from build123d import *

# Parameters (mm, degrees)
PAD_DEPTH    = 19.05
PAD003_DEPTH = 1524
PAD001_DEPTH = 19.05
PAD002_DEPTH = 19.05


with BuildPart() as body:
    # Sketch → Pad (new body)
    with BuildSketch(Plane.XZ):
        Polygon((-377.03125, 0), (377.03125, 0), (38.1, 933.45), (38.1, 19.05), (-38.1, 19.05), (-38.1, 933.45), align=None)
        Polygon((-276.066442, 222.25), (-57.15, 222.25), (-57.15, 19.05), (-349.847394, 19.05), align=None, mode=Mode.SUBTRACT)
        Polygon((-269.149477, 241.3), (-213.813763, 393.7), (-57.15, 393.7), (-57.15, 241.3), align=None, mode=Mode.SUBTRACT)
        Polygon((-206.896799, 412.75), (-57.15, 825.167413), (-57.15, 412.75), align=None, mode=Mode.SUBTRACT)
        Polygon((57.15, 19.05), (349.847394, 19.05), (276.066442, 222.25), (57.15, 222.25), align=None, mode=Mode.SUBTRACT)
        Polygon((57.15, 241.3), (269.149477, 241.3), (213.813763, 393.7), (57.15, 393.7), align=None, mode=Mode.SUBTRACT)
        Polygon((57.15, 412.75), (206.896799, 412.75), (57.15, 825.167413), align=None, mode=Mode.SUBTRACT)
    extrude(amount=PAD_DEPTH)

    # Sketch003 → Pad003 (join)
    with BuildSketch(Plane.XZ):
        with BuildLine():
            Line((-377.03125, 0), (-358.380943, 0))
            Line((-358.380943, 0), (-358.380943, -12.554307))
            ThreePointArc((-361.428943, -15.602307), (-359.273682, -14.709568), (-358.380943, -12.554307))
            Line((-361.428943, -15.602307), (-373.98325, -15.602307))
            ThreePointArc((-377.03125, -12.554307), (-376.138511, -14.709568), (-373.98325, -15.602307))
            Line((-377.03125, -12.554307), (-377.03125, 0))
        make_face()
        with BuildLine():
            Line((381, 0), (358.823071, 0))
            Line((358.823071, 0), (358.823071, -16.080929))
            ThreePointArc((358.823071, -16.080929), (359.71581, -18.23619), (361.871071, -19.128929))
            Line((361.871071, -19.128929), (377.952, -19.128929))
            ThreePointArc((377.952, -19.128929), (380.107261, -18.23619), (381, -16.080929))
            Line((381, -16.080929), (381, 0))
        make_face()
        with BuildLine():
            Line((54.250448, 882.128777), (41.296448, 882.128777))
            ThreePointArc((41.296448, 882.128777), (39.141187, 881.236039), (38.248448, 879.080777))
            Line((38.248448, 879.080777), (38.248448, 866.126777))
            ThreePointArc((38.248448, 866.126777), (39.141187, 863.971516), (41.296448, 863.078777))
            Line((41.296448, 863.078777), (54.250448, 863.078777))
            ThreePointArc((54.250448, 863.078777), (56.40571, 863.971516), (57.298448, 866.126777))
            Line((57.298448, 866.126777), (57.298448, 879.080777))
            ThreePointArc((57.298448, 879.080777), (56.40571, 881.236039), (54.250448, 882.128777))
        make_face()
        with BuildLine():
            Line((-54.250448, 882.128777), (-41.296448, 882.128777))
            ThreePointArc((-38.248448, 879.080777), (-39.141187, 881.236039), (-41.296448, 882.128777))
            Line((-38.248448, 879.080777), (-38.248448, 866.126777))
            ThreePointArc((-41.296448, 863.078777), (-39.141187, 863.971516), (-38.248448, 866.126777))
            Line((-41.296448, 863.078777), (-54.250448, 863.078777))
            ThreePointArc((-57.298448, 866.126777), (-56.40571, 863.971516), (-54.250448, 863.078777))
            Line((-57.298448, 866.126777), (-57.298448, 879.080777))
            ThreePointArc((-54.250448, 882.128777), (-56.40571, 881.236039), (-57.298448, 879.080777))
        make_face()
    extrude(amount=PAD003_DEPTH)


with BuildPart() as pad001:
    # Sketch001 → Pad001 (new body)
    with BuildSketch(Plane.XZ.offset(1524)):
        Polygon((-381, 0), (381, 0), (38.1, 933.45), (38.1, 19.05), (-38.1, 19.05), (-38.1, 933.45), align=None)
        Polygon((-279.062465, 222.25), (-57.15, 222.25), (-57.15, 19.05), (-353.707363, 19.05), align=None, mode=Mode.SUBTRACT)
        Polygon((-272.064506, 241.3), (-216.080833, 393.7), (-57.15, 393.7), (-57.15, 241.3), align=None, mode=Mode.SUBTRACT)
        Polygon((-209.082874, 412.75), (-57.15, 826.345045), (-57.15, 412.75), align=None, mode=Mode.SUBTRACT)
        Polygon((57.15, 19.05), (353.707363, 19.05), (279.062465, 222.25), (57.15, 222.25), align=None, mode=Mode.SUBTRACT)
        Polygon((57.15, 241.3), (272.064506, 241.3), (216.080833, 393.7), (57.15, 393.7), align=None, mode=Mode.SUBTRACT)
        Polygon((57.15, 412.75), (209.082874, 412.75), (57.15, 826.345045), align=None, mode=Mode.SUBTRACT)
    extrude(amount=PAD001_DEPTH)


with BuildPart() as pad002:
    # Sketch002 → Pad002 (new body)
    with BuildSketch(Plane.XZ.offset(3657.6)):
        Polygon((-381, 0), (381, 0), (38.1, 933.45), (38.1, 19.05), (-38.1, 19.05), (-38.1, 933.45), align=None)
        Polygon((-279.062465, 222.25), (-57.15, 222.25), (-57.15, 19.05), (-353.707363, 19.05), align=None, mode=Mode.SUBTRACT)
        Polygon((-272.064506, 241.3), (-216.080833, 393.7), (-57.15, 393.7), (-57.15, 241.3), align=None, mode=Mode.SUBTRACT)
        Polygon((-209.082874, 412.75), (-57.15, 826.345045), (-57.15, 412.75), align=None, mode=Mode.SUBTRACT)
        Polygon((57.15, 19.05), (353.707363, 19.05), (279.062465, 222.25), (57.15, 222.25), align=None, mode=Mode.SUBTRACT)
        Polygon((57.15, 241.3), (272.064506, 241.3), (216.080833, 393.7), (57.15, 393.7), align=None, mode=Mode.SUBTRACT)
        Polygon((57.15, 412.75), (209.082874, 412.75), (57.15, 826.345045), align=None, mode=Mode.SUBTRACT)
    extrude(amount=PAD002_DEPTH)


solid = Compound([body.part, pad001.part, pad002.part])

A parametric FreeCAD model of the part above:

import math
import FreeCAD as App
import Part
import Sketcher
Q = App.Units.Quantity


def add_polygon(sketch, points):
    """Adds a closed chain of lines whose ends are joined by coincident constraints."""
    first, n = sketch.GeometryCount, len(points)
    for a, b in zip(points, points[1:] + points[:1]):
        sketch.addGeometry(Part.LineSegment(App.Vector(*a, 0), App.Vector(*b, 0)), False)
    for i in range(n):
        sketch.addConstraint(Sketcher.Constraint("Coincident", first + i, 2, first + (i + 1) % n, 1))

doc = App.newDocument("Part")
body = doc.addObject("PartDesign::Body", "Body")

sketch1 = doc.addObject("Sketcher::SketchObject", "Sketch")
body.addObject(sketch1)
sketch1.AttachmentSupport = (doc.XZ_Plane, [""])
sketch1.MapMode = "FlatFace"
add_polygon(sketch1, [(-377, 0), (377, 0), (38, 933), (38, 19), (-38, 19), (-38, 933)])
add_polygon(sketch1, [(-350, 19), (-276, 222), (-57, 222), (-57, 19)])
add_polygon(sketch1, [(-57, 241), (-269, 241), (-214, 394), (-57, 394)])
add_polygon(sketch1, [(350, 19), (57, 19), (57, 222), (276, 222)])
add_polygon(sketch1, [(269, 241), (57, 241), (57, 394), (214, 394)])
add_polygon(sketch1, [(-57, 413), (-207, 413), (-57, 825)])
add_polygon(sketch1, [(207, 413), (57, 413), (57, 825)])
sketch1.addConstraint(Sketcher.Constraint("Horizontal", 0))
sketch1.addConstraint(Sketcher.Constraint("Vertical", 2))
sketch1.addConstraint(Sketcher.Constraint("Horizontal", 3))
sketch1.addConstraint(Sketcher.Constraint("Vertical", 4))
sketch1.addConstraint(Sketcher.Constraint("Horizontal", 7))
sketch1.addConstraint(Sketcher.Constraint("Vertical", 8))
sketch1.addConstraint(Sketcher.Constraint("Horizontal", 9))
sketch1.addConstraint(Sketcher.Constraint("Horizontal", 10))
sketch1.addConstraint(Sketcher.Constraint("Horizontal", 12))
sketch1.addConstraint(Sketcher.Constraint("Vertical", 13))
sketch1.addConstraint(Sketcher.Constraint("Horizontal", 14))
sketch1.addConstraint(Sketcher.Constraint("Vertical", 15))
sketch1.addConstraint(Sketcher.Constraint("Horizontal", 16))
sketch1.addConstraint(Sketcher.Constraint("Horizontal", 18))
sketch1.addConstraint(Sketcher.Constraint("Vertical", 19))
sketch1.addConstraint(Sketcher.Constraint("Horizontal", 20))
sketch1.addConstraint(Sketcher.Constraint("Horizontal", 22))
sketch1.addConstraint(Sketcher.Constraint("Vertical", 24))
sketch1.addConstraint(Sketcher.Constraint("Horizontal", 25))
sketch1.addConstraint(Sketcher.Constraint("Vertical", 26))
sketch1.addConstraint(Sketcher.Constraint("Symmetric", 0, 2, 5, 2, -1, 1))
sketch1.addConstraint(Sketcher.Constraint("Symmetric", 1, 2, 4, 2, -2))
sketch1.addConstraint(Sketcher.Constraint("Symmetric", 8, 2, 14, 2, -2))
sketch1.addConstraint(Sketcher.Constraint("Symmetric", 6, 2, 16, 2, -2))
sketch1.addConstraint(Sketcher.Constraint("Symmetric", 13, 2, 18, 2, -2))
sketch1.addConstraint(Sketcher.Constraint("Symmetric", 11, 2, 20, 2, -2))
sketch1.addConstraint(Sketcher.Constraint("Symmetric", 24, 2, 25, 2, -2))
sketch1.addConstraint(Sketcher.Constraint("Parallel", 5, 6))
sketch1.addConstraint(Sketcher.Constraint("Parallel", 6, 11))
sketch1.addConstraint(Sketcher.Constraint("Parallel", 1, 17))
sketch1.addConstraint(Sketcher.Constraint("Parallel", 17, 21))
sketch1.addConstraint(Sketcher.Constraint("Parallel", 11, 23))
sketch1.addConstraint(Sketcher.Constraint("Parallel", 21, 27))
sketch1.addConstraint(Sketcher.Constraint("Horizontal", 3, 2, 8, 2))
sketch1.addConstraint(Sketcher.Constraint("Horizontal", 23, 2, 26, 2))
sketch1.addConstraint(Sketcher.Constraint("Vertical", 8, 2, 12, 2))
sketch1.addConstraint(Sketcher.Constraint("Vertical", 13, 2, 23, 2))
sketch1.addConstraint(Sketcher.Constraint("DistanceX", 3, 2, 3, 1, Q("3 in")))
sketch1.addConstraint(Sketcher.Constraint("DistanceY", 2, 2, 2, 1, Q("36 in")))
sketch1.addConstraint(Sketcher.Constraint("DistanceY", 8, 2, 8, 1, Q("8 in")))
sketch1.addConstraint(Sketcher.Constraint("DistanceY", 13, 2, 13, 1, Q("6 in")))
sketch1.addConstraint(Sketcher.Constraint("DistanceY", -1, 1, 10, 2, Q("9.5 in")))
sketch1.addConstraint(Sketcher.Constraint("DistanceX", 8, 2, 14, 2, Q("4.5 in")))
sketch1.addConstraint(Sketcher.Constraint("DistanceY", 6, 2, 22, 2, Q("7.5 in")))
sketch1.addConstraint(Sketcher.Constraint("DistanceX", 0, 1, 0, 2, Q("29.6875 in")))
sketch1.addConstraint(Sketcher.Constraint("DistanceY", -1, 1, 1, 2, Q("36.75 in")))
sketch1.addConstraint(Sketcher.Constraint("DistanceX", 22, 2, 22, 1, Q("149.746799 mm")))
sketch1.addConstraint(Sketcher.Constraint("DistanceX", 7, 1, 7, 2, Q("218.916442 mm")))
sketch1.addConstraint(Sketcher.Constraint("DistanceX", 10, 2, 10, 1, Q("211.999477 mm")))
pad1 = doc.addObject("PartDesign::Pad", "Pad")
body.addObject(pad1)
pad1.Profile = sketch1
pad1.Length = Q("0.75 in")

sketch2 = doc.addObject("Sketcher::SketchObject", "Sketch001")
body.addObject(sketch2)
sketch2.AttachmentSupport = (doc.XZ_Plane, [""])
sketch2.MapMode = "FlatFace"
sketch2.addGeometry(Part.LineSegment(App.Vector(-358.4, 0, 0), App.Vector(-377, 0, 0)), False)
sketch2.addGeometry(Part.LineSegment(App.Vector(-377, 0, 0), App.Vector(-377, -12.6, 0)), False)
sketch2.addGeometry(Part.ArcOfCircle(Part.Circle(App.Vector(-374, -12.6, 0), App.Vector(0, 0, 1), 3), math.radians(-180), math.radians(-90)), False)
sketch2.addGeometry(Part.LineSegment(App.Vector(-374, -15.6, 0), App.Vector(-361.4, -15.6, 0)), False)
sketch2.addGeometry(Part.ArcOfCircle(Part.Circle(App.Vector(-361.4, -12.6, 0), App.Vector(0, 0, 1), 3), math.radians(-90), math.radians(0)), False)
sketch2.addGeometry(Part.LineSegment(App.Vector(-358.4, -12.6, 0), App.Vector(-358.4, 0, 0)), False)
sketch2.addGeometry(Part.LineSegment(App.Vector(381, 0, 0), App.Vector(358.8, 0, 0)), False)
sketch2.addGeometry(Part.LineSegment(App.Vector(358.8, 0, 0), App.Vector(358.8, -16.1, 0)), False)
sketch2.addGeometry(Part.ArcOfCircle(Part.Circle(App.Vector(361.9, -16.1, 0), App.Vector(0, 0, 1), 3), math.radians(-180), math.radians(-90)), False)
sketch2.addGeometry(Part.LineSegment(App.Vector(361.9, -19.1, 0), App.Vector(378, -19.1, 0)), False)
sketch2.addGeometry(Part.ArcOfCircle(Part.Circle(App.Vector(378, -16.1, 0), App.Vector(0, 0, 1), 3), math.radians(-90), math.radians(0)), False)
sketch2.addGeometry(Part.LineSegment(App.Vector(381, -16.1, 0), App.Vector(381, 0, 0)), False)
sketch2.addGeometry(Part.LineSegment(App.Vector(54.3, 882.1, 0), App.Vector(41.3, 882.1, 0)), False)
sketch2.addGeometry(Part.ArcOfCircle(Part.Circle(App.Vector(41.3, 879.1, 0), App.Vector(0, 0, 1), 3), math.radians(90), math.radians(180)), False)
sketch2.addGeometry(Part.LineSegment(App.Vector(38.2, 879.1, 0), App.Vector(38.2, 866.1, 0)), False)
sketch2.addGeometry(Part.ArcOfCircle(Part.Circle(App.Vector(41.3, 866.1, 0), App.Vector(0, 0, 1), 3), math.radians(-180), math.radians(-90)), False)
sketch2.addGeometry(Part.LineSegment(App.Vector(41.3, 863.1, 0), App.Vector(54.3, 863.1, 0)), False)
sketch2.addGeometry(Part.ArcOfCircle(Part.Circle(App.Vector(54.3, 866.1, 0), App.Vector(0, 0, 1), 3), math.radians(-90), math.radians(0)), False)
sketch2.addGeometry(Part.LineSegment(App.Vector(57.3, 866.1, 0), App.Vector(57.3, 879.1, 0)), False)
sketch2.addGeometry(Part.ArcOfCircle(Part.Circle(App.Vector(54.3, 879.1, 0), App.Vector(0, 0, 1), 3), math.radians(0), math.radians(90)), False)
sketch2.addGeometry(Part.LineSegment(App.Vector(-41.3, 882.1, 0), App.Vector(-54.3, 882.1, 0)), False)
sketch2.addGeometry(Part.ArcOfCircle(Part.Circle(App.Vector(-54.3, 879.1, 0), App.Vector(0, 0, 1), 3), math.radians(90), math.radians(180)), False)
sketch2.addGeometry(Part.LineSegment(App.Vector(-57.3, 879.1, 0), App.Vector(-57.3, 866.1, 0)), False)
sketch2.addGeometry(Part.ArcOfCircle(Part.Circle(App.Vector(-54.3, 866.1, 0), App.Vector(0, 0, 1), 3), math.radians(180), math.radians(270)), False)
sketch2.addGeometry(Part.LineSegment(App.Vector(-54.3, 863.1, 0), App.Vector(-41.3, 863.1, 0)), False)
sketch2.addGeometry(Part.ArcOfCircle(Part.Circle(App.Vector(-41.3, 866.1, 0), App.Vector(0, 0, 1), 3), math.radians(-90), math.radians(0)), False)
sketch2.addGeometry(Part.LineSegment(App.Vector(-38.2, 866.1, 0), App.Vector(-38.2, 879.1, 0)), False)
sketch2.addGeometry(Part.ArcOfCircle(Part.Circle(App.Vector(-41.3, 879.1, 0), App.Vector(0, 0, 1), 3), math.radians(0), math.radians(90)), False)
sketch2.addConstraint(Sketcher.Constraint("Coincident", 0, 2, 1, 1))
sketch2.addConstraint(Sketcher.Constraint("Tangent", 1, 2, 2, 1))
sketch2.addConstraint(Sketcher.Constraint("Tangent", 2, 2, 3, 1))
sketch2.addConstraint(Sketcher.Constraint("Tangent", 3, 2, 4, 1))
sketch2.addConstraint(Sketcher.Constraint("Tangent", 4, 2, 5, 1))
sketch2.addConstraint(Sketcher.Constraint("Coincident", 5, 2, 0, 1))
sketch2.addConstraint(Sketcher.Constraint("Coincident", 6, 2, 7, 1))
sketch2.addConstraint(Sketcher.Constraint("Tangent", 7, 2, 8, 1))
sketch2.addConstraint(Sketcher.Constraint("Tangent", 8, 2, 9, 1))
sketch2.addConstraint(Sketcher.Constraint("Tangent", 9, 2, 10, 1))
sketch2.addConstraint(Sketcher.Constraint("Tangent", 10, 2, 11, 1))
sketch2.addConstraint(Sketcher.Constraint("Coincident", 11, 2, 6, 1))
sketch2.addConstraint(Sketcher.Constraint("Tangent", 12, 2, 13, 1))
sketch2.addConstraint(Sketcher.Constraint("Tangent", 13, 2, 14, 1))
sketch2.addConstraint(Sketcher.Constraint("Tangent", 14, 2, 15, 1))
sketch2.addConstraint(Sketcher.Constraint("Tangent", 15, 2, 16, 1))
sketch2.addConstraint(Sketcher.Constraint("Tangent", 16, 2, 17, 1))
sketch2.addConstraint(Sketcher.Constraint("Tangent", 17, 2, 18, 1))
sketch2.addConstraint(Sketcher.Constraint("Tangent", 18, 2, 19, 1))
sketch2.addConstraint(Sketcher.Constraint("Tangent", 19, 2, 12, 1))
sketch2.addConstraint(Sketcher.Constraint("Tangent", 20, 2, 21, 1))
sketch2.addConstraint(Sketcher.Constraint("Tangent", 21, 2, 22, 1))
sketch2.addConstraint(Sketcher.Constraint("Tangent", 22, 2, 23, 1))
sketch2.addConstraint(Sketcher.Constraint("Tangent", 23, 2, 24, 1))
sketch2.addConstraint(Sketcher.Constraint("Tangent", 24, 2, 25, 1))
sketch2.addConstraint(Sketcher.Constraint("Tangent", 25, 2, 26, 1))
sketch2.addConstraint(Sketcher.Constraint("Tangent", 26, 2, 27, 1))
sketch2.addConstraint(Sketcher.Constraint("Tangent", 27, 2, 20, 1))
sketch2.addConstraint(Sketcher.Constraint("Horizontal", 0))
sketch2.addConstraint(Sketcher.Constraint("Vertical", 1))
sketch2.addConstraint(Sketcher.Constraint("Horizontal", 3))
sketch2.addConstraint(Sketcher.Constraint("Vertical", 5))
sketch2.addConstraint(Sketcher.Constraint("Horizontal", 6))
sketch2.addConstraint(Sketcher.Constraint("Vertical", 7))
sketch2.addConstraint(Sketcher.Constraint("Horizontal", 9))
sketch2.addConstraint(Sketcher.Constraint("Vertical", 11))
sketch2.addConstraint(Sketcher.Constraint("Horizontal", 12))
sketch2.addConstraint(Sketcher.Constraint("Vertical", 14))
sketch2.addConstraint(Sketcher.Constraint("Horizontal", 16))
sketch2.addConstraint(Sketcher.Constraint("Vertical", 18))
sketch2.addConstraint(Sketcher.Constraint("Horizontal", 20))
sketch2.addConstraint(Sketcher.Constraint("Vertical", 22))
sketch2.addConstraint(Sketcher.Constraint("Horizontal", 24))
sketch2.addConstraint(Sketcher.Constraint("Vertical", 26))
sketch2.addConstraint(Sketcher.Constraint("Equal", 2, 4))
sketch2.addConstraint(Sketcher.Constraint("Equal", 4, 8))
sketch2.addConstraint(Sketcher.Constraint("Equal", 8, 10))
sketch2.addConstraint(Sketcher.Constraint("Equal", 10, 13))
sketch2.addConstraint(Sketcher.Constraint("Equal", 13, 15))
sketch2.addConstraint(Sketcher.Constraint("Equal", 15, 17))
sketch2.addConstraint(Sketcher.Constraint("Equal", 17, 19))
sketch2.addConstraint(Sketcher.Constraint("Equal", 19, 21))
sketch2.addConstraint(Sketcher.Constraint("Equal", 21, 23))
sketch2.addConstraint(Sketcher.Constraint("Equal", 23, 25))
sketch2.addConstraint(Sketcher.Constraint("Equal", 25, 27))
sketch2.addConstraint(Sketcher.Constraint("Symmetric", 19, 3, 21, 3, -2))
sketch2.addConstraint(Sketcher.Constraint("Symmetric", 15, 3, 25, 3, -2))
sketch2.addConstraint(Sketcher.Constraint("PointOnObject", 0, 2, -1))
sketch2.addConstraint(Sketcher.Constraint("PointOnObject", 6, 2, -1))
sketch2.addConstraint(Sketcher.Constraint("Equal", 3, 1))
sketch2.addConstraint(Sketcher.Constraint("Equal", 9, 7))
sketch2.addConstraint(Sketcher.Constraint("Equal", 24, 14))
sketch2.addConstraint(Sketcher.Constraint("Radius", 2, Q("0.1200001 in")))
sketch2.addConstraint(Sketcher.Constraint("DistanceX", -1, 1, 10, 2, Q("15 in")))
sketch2.addConstraint(Sketcher.Constraint("DistanceX", 12, 2, 12, 1, Q("0.51 in")))
sketch2.addConstraint(Sketcher.Constraint("DistanceX", 0, 2, -1, 1, Q("14.84375 in")))
sketch2.addConstraint(Sketcher.Constraint("DistanceX", 6, 2, 6, 1, Q("22.176929 mm")))
sketch2.addConstraint(Sketcher.Constraint("DistanceX", 2, 3, 15, 3, Q("415.279698 mm")))
sketch2.addConstraint(Sketcher.Constraint("DistanceX", 0, 2, 0, 1, Q("18.650307 mm")))
sketch2.addConstraint(Sketcher.Constraint("DistanceY", -1, 1, 15, 3, Q("866.126779 mm")))
pad2 = doc.addObject("PartDesign::Pad", "Pad001")
body.addObject(pad2)
pad2.Profile = sketch2
pad2.Length = Q("60 in")
body2 = doc.addObject("PartDesign::Body", "Body001")

sketch3 = doc.addObject("Sketcher::SketchObject", "Sketch002")
body2.addObject(sketch3)
sketch3.AttachmentSupport = (doc.getObject("XZ_Plane001"), [""])
sketch3.MapMode = "FlatFace"
sketch3.AttachmentOffset = App.Placement(App.Vector(0, 0, 60 * 25.4), App.Rotation())
add_polygon(sketch3, [(-381, 0), (381, 0), (38, 933), (38, 19), (-38, 19), (-38, 933)])
add_polygon(sketch3, [(-354, 19), (-279, 222), (-57, 222), (-57, 19)])
add_polygon(sketch3, [(-57, 241), (-272, 241), (-216, 394), (-57, 394)])
add_polygon(sketch3, [(354, 19), (57, 19), (57, 222), (279, 222)])
add_polygon(sketch3, [(272, 241), (57, 241), (57, 394), (216, 394)])
add_polygon(sketch3, [(-57, 413), (-209, 413), (-57, 826)])
add_polygon(sketch3, [(209, 413), (57, 413), (57, 826)])
sketch3.addConstraint(Sketcher.Constraint("Horizontal", 0))
sketch3.addConstraint(Sketcher.Constraint("Vertical", 2))
sketch3.addConstraint(Sketcher.Constraint("Horizontal", 3))
sketch3.addConstraint(Sketcher.Constraint("Vertical", 4))
sketch3.addConstraint(Sketcher.Constraint("Horizontal", 7))
sketch3.addConstraint(Sketcher.Constraint("Vertical", 8))
sketch3.addConstraint(Sketcher.Constraint("Horizontal", 9))
sketch3.addConstraint(Sketcher.Constraint("Horizontal", 10))
sketch3.addConstraint(Sketcher.Constraint("Horizontal", 12))
sketch3.addConstraint(Sketcher.Constraint("Vertical", 13))
sketch3.addConstraint(Sketcher.Constraint("Horizontal", 14))
sketch3.addConstraint(Sketcher.Constraint("Vertical", 15))
sketch3.addConstraint(Sketcher.Constraint("Horizontal", 16))
sketch3.addConstraint(Sketcher.Constraint("Horizontal", 18))
sketch3.addConstraint(Sketcher.Constraint("Vertical", 19))
sketch3.addConstraint(Sketcher.Constraint("Horizontal", 20))
sketch3.addConstraint(Sketcher.Constraint("Horizontal", 22))
sketch3.addConstraint(Sketcher.Constraint("Vertical", 24))
sketch3.addConstraint(Sketcher.Constraint("Horizontal", 25))
sketch3.addConstraint(Sketcher.Constraint("Vertical", 26))
sketch3.addConstraint(Sketcher.Constraint("Symmetric", 0, 2, 5, 2, -1, 1))
sketch3.addConstraint(Sketcher.Constraint("Symmetric", 1, 2, 4, 2, -2))
sketch3.addConstraint(Sketcher.Constraint("Symmetric", 8, 2, 14, 2, -2))
sketch3.addConstraint(Sketcher.Constraint("Symmetric", 6, 2, 16, 2, -2))
sketch3.addConstraint(Sketcher.Constraint("Symmetric", 13, 2, 18, 2, -2))
sketch3.addConstraint(Sketcher.Constraint("Symmetric", 11, 2, 20, 2, -2))
sketch3.addConstraint(Sketcher.Constraint("Symmetric", 24, 2, 25, 2, -2))
sketch3.addConstraint(Sketcher.Constraint("Parallel", 5, 6))
sketch3.addConstraint(Sketcher.Constraint("Parallel", 6, 11))
sketch3.addConstraint(Sketcher.Constraint("Parallel", 1, 17))
sketch3.addConstraint(Sketcher.Constraint("Parallel", 17, 21))
sketch3.addConstraint(Sketcher.Constraint("Parallel", 11, 23))
sketch3.addConstraint(Sketcher.Constraint("Parallel", 21, 27))
sketch3.addConstraint(Sketcher.Constraint("Horizontal", 3, 2, 8, 2))
sketch3.addConstraint(Sketcher.Constraint("Horizontal", 23, 2, 26, 2))
sketch3.addConstraint(Sketcher.Constraint("Vertical", 8, 2, 12, 2))
sketch3.addConstraint(Sketcher.Constraint("Vertical", 13, 2, 23, 2))
sketch3.addConstraint(Sketcher.Constraint("DistanceX", 0, 1, 0, 2, Q("30 in")))
sketch3.addConstraint(Sketcher.Constraint("DistanceX", 3, 2, 3, 1, Q("3 in")))
sketch3.addConstraint(Sketcher.Constraint("DistanceY", 2, 2, 2, 1, Q("36 in")))
sketch3.addConstraint(Sketcher.Constraint("DistanceY", 8, 2, 8, 1, Q("8 in")))
sketch3.addConstraint(Sketcher.Constraint("DistanceY", 13, 2, 13, 1, Q("6 in")))
sketch3.addConstraint(Sketcher.Constraint("DistanceY", -1, 1, 10, 2, Q("9.5 in")))
sketch3.addConstraint(Sketcher.Constraint("DistanceX", 8, 2, 14, 2, Q("4.5 in")))
sketch3.addConstraint(Sketcher.Constraint("DistanceY", 6, 2, 22, 2, Q("7.5 in")))
sketch3.addConstraint(Sketcher.Constraint("DistanceY", -1, 1, 1, 2, Q("36.75 in")))
sketch3.addConstraint(Sketcher.Constraint("Distance", 23, Q("440.61827 mm")))
sketch3.addConstraint(Sketcher.Constraint("DistanceX", 7, 1, 7, 2, Q("221.912465 mm")))
sketch3.addConstraint(Sketcher.Constraint("DistanceX", 10, 2, 10, 1, Q("214.914506 mm")))
pad3 = doc.addObject("PartDesign::Pad", "Pad002")
body2.addObject(pad3)
pad3.Profile = sketch3
pad3.Length = Q("0.75 in")
body3 = doc.addObject("PartDesign::Body", "Body002")

sketch4 = doc.addObject("Sketcher::SketchObject", "Sketch003")
body3.addObject(sketch4)
sketch4.AttachmentSupport = (doc.getObject("XZ_Plane002"), [""])
sketch4.MapMode = "FlatFace"
sketch4.AttachmentOffset = App.Placement(App.Vector(0, 0, 144 * 25.4), App.Rotation())
add_polygon(sketch4, [(-381, 0), (381, 0), (38, 933), (38, 19), (-38, 19), (-38, 933)])
add_polygon(sketch4, [(-354, 19), (-279, 222), (-57, 222), (-57, 19)])
add_polygon(sketch4, [(-57, 241), (-272, 241), (-216, 394), (-57, 394)])
add_polygon(sketch4, [(354, 19), (57, 19), (57, 222), (279, 222)])
add_polygon(sketch4, [(272, 241), (57, 241), (57, 394), (216, 394)])
add_polygon(sketch4, [(-57, 413), (-209, 413), (-57, 826)])
add_polygon(sketch4, [(209, 413), (57, 413), (57, 826)])
sketch4.addConstraint(Sketcher.Constraint("Horizontal", 0))
sketch4.addConstraint(Sketcher.Constraint("Vertical", 2))
sketch4.addConstraint(Sketcher.Constraint("Horizontal", 3))
sketch4.addConstraint(Sketcher.Constraint("Vertical", 4))
sketch4.addConstraint(Sketcher.Constraint("Horizontal", 7))
sketch4.addConstraint(Sketcher.Constraint("Vertical", 8))
sketch4.addConstraint(Sketcher.Constraint("Horizontal", 9))
sketch4.addConstraint(Sketcher.Constraint("Horizontal", 10))
sketch4.addConstraint(Sketcher.Constraint("Horizontal", 12))
sketch4.addConstraint(Sketcher.Constraint("Vertical", 13))
sketch4.addConstraint(Sketcher.Constraint("Horizontal", 14))
sketch4.addConstraint(Sketcher.Constraint("Vertical", 15))
sketch4.addConstraint(Sketcher.Constraint("Horizontal", 16))
sketch4.addConstraint(Sketcher.Constraint("Horizontal", 18))
sketch4.addConstraint(Sketcher.Constraint("Vertical", 19))
sketch4.addConstraint(Sketcher.Constraint("Horizontal", 20))
sketch4.addConstraint(Sketcher.Constraint("Horizontal", 22))
sketch4.addConstraint(Sketcher.Constraint("Vertical", 24))
sketch4.addConstraint(Sketcher.Constraint("Horizontal", 25))
sketch4.addConstraint(Sketcher.Constraint("Vertical", 26))
sketch4.addConstraint(Sketcher.Constraint("Symmetric", 0, 2, 5, 2, -1, 1))
sketch4.addConstraint(Sketcher.Constraint("Symmetric", 1, 2, 4, 2, -2))
sketch4.addConstraint(Sketcher.Constraint("Symmetric", 8, 2, 14, 2, -2))
sketch4.addConstraint(Sketcher.Constraint("Symmetric", 6, 2, 16, 2, -2))
sketch4.addConstraint(Sketcher.Constraint("Symmetric", 13, 2, 18, 2, -2))
sketch4.addConstraint(Sketcher.Constraint("Symmetric", 11, 2, 20, 2, -2))
sketch4.addConstraint(Sketcher.Constraint("Symmetric", 24, 2, 25, 2, -2))
sketch4.addConstraint(Sketcher.Constraint("Parallel", 5, 6))
sketch4.addConstraint(Sketcher.Constraint("Parallel", 6, 11))
sketch4.addConstraint(Sketcher.Constraint("Parallel", 1, 17))
sketch4.addConstraint(Sketcher.Constraint("Parallel", 17, 21))
sketch4.addConstraint(Sketcher.Constraint("Parallel", 11, 23))
sketch4.addConstraint(Sketcher.Constraint("Parallel", 21, 27))
sketch4.addConstraint(Sketcher.Constraint("Horizontal", 3, 2, 8, 2))
sketch4.addConstraint(Sketcher.Constraint("Horizontal", 23, 2, 26, 2))
sketch4.addConstraint(Sketcher.Constraint("Vertical", 8, 2, 12, 2))
sketch4.addConstraint(Sketcher.Constraint("Vertical", 13, 2, 23, 2))
sketch4.addConstraint(Sketcher.Constraint("DistanceX", 0, 1, 0, 2, Q("30 in")))
sketch4.addConstraint(Sketcher.Constraint("DistanceX", 3, 2, 3, 1, Q("3 in")))
sketch4.addConstraint(Sketcher.Constraint("DistanceY", 2, 2, 2, 1, Q("36 in")))
sketch4.addConstraint(Sketcher.Constraint("DistanceY", 8, 2, 8, 1, Q("8 in")))
sketch4.addConstraint(Sketcher.Constraint("DistanceY", 13, 2, 13, 1, Q("6 in")))
sketch4.addConstraint(Sketcher.Constraint("DistanceY", -1, 1, 10, 2, Q("9.5 in")))
sketch4.addConstraint(Sketcher.Constraint("DistanceX", 8, 2, 14, 2, Q("4.5 in")))
sketch4.addConstraint(Sketcher.Constraint("DistanceY", 6, 2, 22, 2, Q("7.5 in")))
sketch4.addConstraint(Sketcher.Constraint("DistanceY", -1, 1, 1, 2, Q("36.75 in")))
sketch4.addConstraint(Sketcher.Constraint("Distance", 23, Q("440.61827 mm")))
sketch4.addConstraint(Sketcher.Constraint("DistanceX", 7, 1, 7, 2, Q("221.912465 mm")))
sketch4.addConstraint(Sketcher.Constraint("DistanceX", 10, 2, 10, 1, Q("214.914506 mm")))
pad4 = doc.addObject("PartDesign::Pad", "Pad003")
body3.addObject(pad4)
pad4.Profile = sketch4
pad4.Length = Q("0.75 in")

doc.recompute()
